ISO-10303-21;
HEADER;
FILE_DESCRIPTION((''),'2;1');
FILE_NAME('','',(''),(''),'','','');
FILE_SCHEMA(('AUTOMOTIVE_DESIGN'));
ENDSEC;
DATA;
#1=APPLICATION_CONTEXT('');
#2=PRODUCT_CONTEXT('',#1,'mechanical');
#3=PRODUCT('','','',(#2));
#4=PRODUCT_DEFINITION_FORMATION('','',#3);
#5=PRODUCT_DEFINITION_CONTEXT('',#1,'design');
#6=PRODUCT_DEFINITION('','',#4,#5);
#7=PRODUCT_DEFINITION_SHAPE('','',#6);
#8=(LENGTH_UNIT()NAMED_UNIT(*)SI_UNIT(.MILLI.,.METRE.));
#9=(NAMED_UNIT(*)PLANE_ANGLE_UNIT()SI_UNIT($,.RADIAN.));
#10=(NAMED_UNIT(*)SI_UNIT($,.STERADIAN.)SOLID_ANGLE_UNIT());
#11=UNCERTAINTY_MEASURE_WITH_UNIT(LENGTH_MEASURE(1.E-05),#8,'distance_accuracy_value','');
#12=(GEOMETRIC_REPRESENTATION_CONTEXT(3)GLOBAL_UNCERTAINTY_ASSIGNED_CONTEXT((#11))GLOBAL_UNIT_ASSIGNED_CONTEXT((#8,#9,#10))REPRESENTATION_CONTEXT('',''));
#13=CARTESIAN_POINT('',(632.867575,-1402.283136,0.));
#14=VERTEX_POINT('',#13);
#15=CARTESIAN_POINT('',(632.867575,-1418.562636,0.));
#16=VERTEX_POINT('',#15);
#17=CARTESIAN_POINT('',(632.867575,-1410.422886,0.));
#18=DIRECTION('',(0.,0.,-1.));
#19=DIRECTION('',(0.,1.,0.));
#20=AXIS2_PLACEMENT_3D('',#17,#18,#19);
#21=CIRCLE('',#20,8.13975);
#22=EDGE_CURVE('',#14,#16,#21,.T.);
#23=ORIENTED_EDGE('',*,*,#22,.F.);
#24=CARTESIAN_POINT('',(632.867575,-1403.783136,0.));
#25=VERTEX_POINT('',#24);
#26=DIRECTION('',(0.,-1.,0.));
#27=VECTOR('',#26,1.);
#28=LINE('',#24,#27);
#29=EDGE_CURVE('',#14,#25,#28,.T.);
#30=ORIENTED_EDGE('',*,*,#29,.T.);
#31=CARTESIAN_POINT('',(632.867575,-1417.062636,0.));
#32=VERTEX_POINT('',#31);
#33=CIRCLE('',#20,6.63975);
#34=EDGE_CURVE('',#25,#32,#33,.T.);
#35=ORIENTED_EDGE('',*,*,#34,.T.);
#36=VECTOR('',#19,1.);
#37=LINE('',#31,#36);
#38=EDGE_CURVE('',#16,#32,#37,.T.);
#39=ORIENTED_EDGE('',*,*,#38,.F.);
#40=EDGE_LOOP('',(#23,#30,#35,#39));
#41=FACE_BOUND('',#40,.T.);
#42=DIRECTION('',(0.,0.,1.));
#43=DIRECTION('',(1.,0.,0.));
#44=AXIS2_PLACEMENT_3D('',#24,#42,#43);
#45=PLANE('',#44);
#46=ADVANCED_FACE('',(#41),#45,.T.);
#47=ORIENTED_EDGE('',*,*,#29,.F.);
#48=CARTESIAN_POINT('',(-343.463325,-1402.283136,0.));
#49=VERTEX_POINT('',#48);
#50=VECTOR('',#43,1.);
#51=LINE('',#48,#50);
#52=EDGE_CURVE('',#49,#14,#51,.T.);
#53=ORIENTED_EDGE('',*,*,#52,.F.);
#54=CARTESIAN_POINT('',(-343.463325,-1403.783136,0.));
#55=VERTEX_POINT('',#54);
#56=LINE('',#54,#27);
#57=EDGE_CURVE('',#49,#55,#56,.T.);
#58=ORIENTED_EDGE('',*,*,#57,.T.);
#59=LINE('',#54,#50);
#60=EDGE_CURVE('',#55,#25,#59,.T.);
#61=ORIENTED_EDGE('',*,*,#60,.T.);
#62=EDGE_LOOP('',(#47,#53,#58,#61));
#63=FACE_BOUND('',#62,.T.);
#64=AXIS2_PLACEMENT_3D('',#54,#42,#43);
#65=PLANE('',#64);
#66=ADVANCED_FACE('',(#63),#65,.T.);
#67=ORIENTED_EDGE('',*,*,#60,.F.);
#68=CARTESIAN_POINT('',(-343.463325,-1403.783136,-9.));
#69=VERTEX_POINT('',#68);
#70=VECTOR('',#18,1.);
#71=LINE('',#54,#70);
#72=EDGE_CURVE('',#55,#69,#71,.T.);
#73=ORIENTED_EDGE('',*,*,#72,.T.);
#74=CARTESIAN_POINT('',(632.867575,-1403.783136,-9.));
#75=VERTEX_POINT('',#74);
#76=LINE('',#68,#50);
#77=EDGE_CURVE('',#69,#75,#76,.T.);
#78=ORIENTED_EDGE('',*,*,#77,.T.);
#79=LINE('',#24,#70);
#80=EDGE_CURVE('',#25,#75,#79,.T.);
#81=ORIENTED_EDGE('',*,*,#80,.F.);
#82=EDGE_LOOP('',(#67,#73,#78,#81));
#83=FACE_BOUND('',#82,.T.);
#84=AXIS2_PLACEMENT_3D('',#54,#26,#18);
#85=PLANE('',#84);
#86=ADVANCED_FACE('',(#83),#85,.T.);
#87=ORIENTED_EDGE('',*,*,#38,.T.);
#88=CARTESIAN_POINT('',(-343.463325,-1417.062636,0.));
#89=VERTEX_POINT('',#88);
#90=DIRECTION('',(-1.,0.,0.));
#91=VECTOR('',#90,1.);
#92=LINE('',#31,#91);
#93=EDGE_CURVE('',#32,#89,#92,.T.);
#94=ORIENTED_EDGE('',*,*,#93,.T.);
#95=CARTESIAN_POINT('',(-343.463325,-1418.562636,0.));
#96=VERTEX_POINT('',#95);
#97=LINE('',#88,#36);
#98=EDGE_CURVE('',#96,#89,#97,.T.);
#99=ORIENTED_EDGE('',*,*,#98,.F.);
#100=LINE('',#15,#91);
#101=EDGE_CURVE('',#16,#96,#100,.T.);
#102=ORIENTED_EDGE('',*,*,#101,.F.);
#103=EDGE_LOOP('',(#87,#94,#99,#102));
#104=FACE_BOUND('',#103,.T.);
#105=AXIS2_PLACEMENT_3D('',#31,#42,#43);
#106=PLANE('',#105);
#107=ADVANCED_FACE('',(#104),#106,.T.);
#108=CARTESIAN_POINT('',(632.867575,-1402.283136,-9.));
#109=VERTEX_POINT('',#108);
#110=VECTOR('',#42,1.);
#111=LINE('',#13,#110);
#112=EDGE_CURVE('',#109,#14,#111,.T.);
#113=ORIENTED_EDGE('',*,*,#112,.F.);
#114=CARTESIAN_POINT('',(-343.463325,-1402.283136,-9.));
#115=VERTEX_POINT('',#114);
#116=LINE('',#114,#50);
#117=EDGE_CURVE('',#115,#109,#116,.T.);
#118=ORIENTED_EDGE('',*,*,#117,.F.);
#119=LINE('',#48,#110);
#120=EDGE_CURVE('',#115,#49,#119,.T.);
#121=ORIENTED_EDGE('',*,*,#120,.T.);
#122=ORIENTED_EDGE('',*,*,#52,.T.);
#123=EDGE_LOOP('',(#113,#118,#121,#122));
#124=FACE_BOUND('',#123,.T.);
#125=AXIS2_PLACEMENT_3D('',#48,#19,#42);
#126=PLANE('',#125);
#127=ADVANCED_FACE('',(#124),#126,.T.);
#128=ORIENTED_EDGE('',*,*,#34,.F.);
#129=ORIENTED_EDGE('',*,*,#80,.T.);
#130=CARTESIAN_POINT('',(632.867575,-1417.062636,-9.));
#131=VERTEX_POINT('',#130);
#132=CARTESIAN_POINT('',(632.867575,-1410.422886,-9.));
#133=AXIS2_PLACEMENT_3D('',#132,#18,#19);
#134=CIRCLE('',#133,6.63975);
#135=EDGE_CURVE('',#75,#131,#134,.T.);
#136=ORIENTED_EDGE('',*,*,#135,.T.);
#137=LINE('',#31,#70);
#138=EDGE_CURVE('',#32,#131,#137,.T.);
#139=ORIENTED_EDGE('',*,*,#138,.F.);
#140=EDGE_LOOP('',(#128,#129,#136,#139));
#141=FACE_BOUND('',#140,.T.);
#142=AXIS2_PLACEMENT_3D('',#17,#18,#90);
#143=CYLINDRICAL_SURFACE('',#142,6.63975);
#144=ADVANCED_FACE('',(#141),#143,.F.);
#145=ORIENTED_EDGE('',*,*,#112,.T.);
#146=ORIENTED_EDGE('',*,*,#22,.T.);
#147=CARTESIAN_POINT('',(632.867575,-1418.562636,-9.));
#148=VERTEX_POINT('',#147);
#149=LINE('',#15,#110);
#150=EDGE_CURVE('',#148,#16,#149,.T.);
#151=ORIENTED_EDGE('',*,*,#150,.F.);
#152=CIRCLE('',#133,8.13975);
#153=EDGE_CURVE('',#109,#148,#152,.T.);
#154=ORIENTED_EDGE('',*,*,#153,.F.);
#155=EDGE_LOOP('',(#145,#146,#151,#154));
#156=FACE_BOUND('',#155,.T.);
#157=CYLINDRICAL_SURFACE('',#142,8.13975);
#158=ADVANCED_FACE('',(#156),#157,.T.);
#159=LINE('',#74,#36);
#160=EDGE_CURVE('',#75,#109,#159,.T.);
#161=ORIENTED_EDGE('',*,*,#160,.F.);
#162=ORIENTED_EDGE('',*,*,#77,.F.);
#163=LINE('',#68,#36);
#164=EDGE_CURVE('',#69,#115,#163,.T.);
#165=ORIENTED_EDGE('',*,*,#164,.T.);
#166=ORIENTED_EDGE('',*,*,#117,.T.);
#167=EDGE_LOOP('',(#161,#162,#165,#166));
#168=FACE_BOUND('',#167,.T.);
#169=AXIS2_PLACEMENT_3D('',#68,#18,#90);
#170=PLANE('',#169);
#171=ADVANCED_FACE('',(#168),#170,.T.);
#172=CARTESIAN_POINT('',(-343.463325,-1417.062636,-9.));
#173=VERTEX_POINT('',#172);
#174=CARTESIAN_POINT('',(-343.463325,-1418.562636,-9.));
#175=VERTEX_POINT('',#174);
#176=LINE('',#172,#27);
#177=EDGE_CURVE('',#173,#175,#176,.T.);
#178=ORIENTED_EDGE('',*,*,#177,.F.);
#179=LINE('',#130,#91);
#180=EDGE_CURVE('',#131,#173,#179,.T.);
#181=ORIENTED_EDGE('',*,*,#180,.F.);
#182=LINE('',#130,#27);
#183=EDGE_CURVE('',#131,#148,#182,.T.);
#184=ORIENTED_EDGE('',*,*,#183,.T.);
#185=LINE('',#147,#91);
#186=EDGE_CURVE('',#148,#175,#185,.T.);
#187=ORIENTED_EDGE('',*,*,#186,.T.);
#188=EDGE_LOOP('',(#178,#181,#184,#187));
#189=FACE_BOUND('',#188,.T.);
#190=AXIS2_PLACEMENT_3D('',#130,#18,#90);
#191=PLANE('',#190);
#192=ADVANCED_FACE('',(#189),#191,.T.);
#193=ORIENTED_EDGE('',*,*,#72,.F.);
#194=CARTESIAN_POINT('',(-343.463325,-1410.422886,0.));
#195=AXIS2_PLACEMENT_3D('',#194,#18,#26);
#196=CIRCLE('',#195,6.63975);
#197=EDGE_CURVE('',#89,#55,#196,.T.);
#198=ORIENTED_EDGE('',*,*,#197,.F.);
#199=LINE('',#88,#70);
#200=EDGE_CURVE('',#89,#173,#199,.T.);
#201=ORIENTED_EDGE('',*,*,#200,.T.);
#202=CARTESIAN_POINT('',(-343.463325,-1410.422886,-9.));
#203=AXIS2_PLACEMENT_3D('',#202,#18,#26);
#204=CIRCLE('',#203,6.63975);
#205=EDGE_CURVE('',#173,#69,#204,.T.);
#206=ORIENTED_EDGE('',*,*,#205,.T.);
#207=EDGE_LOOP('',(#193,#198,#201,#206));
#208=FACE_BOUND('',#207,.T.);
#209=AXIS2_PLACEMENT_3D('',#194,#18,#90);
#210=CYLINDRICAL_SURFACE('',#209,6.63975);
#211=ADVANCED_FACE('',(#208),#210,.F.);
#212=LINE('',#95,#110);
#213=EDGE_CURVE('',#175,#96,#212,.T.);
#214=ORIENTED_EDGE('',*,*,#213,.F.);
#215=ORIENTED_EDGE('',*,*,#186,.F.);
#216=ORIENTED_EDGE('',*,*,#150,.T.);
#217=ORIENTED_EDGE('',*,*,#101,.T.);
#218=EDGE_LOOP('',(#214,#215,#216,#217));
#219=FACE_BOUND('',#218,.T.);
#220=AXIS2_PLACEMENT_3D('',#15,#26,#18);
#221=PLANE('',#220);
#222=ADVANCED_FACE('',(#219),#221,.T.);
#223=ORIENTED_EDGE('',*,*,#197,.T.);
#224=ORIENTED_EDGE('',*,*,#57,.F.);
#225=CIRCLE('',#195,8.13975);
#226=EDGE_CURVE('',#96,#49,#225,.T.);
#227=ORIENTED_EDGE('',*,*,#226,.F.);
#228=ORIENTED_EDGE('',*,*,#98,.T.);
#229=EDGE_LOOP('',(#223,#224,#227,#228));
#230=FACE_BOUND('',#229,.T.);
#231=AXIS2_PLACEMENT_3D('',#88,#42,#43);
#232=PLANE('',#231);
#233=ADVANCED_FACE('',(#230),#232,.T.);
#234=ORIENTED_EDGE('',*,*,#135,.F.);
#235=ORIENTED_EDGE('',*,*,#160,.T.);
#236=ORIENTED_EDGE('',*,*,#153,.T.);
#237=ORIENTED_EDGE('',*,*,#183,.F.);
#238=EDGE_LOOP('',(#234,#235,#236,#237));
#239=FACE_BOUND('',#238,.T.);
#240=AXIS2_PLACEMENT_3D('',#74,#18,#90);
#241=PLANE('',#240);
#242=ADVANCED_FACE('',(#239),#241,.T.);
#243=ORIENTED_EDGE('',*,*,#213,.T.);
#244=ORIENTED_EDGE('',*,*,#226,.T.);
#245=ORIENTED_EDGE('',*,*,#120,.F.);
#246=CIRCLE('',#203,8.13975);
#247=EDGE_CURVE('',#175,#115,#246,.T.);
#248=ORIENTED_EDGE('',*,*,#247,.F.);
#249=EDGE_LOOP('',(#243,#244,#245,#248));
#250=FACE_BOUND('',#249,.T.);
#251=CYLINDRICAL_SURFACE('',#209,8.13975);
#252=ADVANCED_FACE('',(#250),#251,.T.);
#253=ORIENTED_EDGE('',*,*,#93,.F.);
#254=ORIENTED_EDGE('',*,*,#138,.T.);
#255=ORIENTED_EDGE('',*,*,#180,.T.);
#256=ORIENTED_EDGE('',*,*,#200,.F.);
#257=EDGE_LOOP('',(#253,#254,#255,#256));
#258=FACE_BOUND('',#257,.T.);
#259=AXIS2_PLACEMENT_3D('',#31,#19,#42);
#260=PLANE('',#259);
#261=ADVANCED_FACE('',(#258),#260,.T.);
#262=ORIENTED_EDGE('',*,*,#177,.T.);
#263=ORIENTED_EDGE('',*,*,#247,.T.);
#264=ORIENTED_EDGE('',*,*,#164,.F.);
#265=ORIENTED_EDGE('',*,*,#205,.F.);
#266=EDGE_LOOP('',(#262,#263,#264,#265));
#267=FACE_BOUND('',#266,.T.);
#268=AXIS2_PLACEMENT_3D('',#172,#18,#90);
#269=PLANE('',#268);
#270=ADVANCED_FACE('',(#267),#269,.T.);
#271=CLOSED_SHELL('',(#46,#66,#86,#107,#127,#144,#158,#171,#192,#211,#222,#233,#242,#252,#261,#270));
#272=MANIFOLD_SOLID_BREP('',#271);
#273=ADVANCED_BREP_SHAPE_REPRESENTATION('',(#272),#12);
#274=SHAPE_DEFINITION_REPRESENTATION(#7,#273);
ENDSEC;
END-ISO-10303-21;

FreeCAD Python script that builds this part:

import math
import FreeCAD as App
import Part
import Sketcher
from FreeCAD import Vector
Q = App.Units.Quantity


def add_polygon(sketch, points):
    """Adds a closed chain of lines whose ends are joined by coincident constraints."""
    first, n = sketch.GeometryCount, len(points)
    for a, b in zip(points, points[1:] + points[:1]):
        sketch.addGeometry(Part.LineSegment(App.Vector(*a, 0), App.Vector(*b, 0)), False)
    for i in range(n):
        sketch.addConstraint(Sketcher.Constraint("Coincident", first + i, 2, first + (i + 1) % n, 1))

doc = App.newDocument("Part")
body = doc.addObject("PartDesign::Body", "Body")

# Sketch on YZ plane
sketch1 = doc.addObject("Sketcher::SketchObject", "Sketch")
body.addObject(sketch1)
sketch1.AttachmentSupport = (doc.YZ_Plane, [""])
sketch1.MapMode = "FlatFace"
sketch1.AttachmentOffset = App.Placement(Vector(0, 0, 632.867575), App.Rotation())
add_polygon(sketch1, [(-1402.283136, 0), (-1403.783136, 0), (-1403.783136, -9), (-1402.283136, -9)])  # lines 0-3
sketch1.addConstraint([
    Sketcher.Constraint("Horizontal", 0),
    Sketcher.Constraint("Vertical", 1),
    Sketcher.Constraint("Horizontal", 2),
    Sketcher.Constraint("Vertical", 3),
    Sketcher.Constraint("PointOnObject", 0, 2, -1),
    Sketcher.Constraint("DistanceY", 1, 2, 1, 1, Q("9 mm")),
    Sketcher.Constraint("DistanceX", 0, 2, 0, 1, Q("1.5 mm")),
    Sketcher.Constraint("DistanceX", 0, 2, -1, 1, Q("1403.783136 mm")),
])

# Sketch on XY plane
sketch2 = doc.addObject("Sketcher::SketchObject", "Sketch001")
body.addObject(sketch2)
sketch2.AttachmentSupport = (doc.XY_Plane, [""])
sketch2.MapMode = "FlatFace"
sketch2.addGeometry([
    Part.LineSegment(Vector(632.867575, -1418.562636, 0), Vector(-343.463325, -1418.562636, 0)),
    Part.ArcOfCircle(Part.Circle(Vector(-343.463325, -1410.422886, 0), Vector(0, 0, 1), 8.13975), math.radians(90), math.radians(270)),
    Part.LineSegment(Vector(-343.463325, -1402.283136, 0), Vector(632.867575, -1402.283136, 0)),
    Part.ArcOfCircle(Part.Circle(Vector(632.867575, -1410.422886, 0), Vector(0, 0, 1), 8.13975), math.radians(-90), math.radians(90)),
], False)
sketch2.addConstraint([
    Sketcher.Constraint("Tangent", 0, 2, 1, 2),
    Sketcher.Constraint("Tangent", 1, 1, 2, 1),
    Sketcher.Constraint("Tangent", 2, 2, 3, 2),
    Sketcher.Constraint("Tangent", 3, 1, 0, 1),
    Sketcher.Constraint("Horizontal", 0),
    Sketcher.Constraint("Horizontal", 2),
    Sketcher.Constraint("Radius", 1, Q("8.13975 mm")),
    Sketcher.Constraint("DistanceX", 0, 2, 0, 1, Q("976.3309 mm")),
    Sketcher.Constraint("DistanceX", 1, 3, -1, 1, Q("343.463325 mm")),
    Sketcher.Constraint("DistanceY", 1, 3, -1, 1, Q("1410.422886 mm")),
])
doc.recompute()

additivepipe = doc.addObject("PartDesign::AdditivePipe", "AdditivePipe")
body.addObject(additivepipe)
additivepipe.Profile = sketch1
additivepipe.Spine = (sketch2, ["Edge1", "Edge2", "Edge3", "Edge4"])

doc.recompute()
